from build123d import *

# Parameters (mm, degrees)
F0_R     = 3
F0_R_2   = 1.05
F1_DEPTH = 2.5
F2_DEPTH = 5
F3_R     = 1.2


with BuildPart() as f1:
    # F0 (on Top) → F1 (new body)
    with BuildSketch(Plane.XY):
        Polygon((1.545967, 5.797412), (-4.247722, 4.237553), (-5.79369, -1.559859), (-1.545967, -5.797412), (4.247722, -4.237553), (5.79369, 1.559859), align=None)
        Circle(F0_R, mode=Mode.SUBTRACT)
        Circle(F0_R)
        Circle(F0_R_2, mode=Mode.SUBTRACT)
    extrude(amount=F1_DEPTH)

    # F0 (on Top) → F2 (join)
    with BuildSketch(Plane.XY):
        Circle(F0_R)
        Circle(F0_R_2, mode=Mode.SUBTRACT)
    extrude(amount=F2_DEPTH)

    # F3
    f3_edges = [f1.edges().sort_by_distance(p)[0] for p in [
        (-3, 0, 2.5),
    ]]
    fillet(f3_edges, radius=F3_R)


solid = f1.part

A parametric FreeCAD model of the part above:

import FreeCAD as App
import Part
import Sketcher

V = App.Vector


def edges_at(feature, points):
    """Names of the edges that pass closest to the given points."""
    edges = feature.Shape.Edges
    near = lambda p: min(range(len(edges)), key=lambda i: edges[i].distToShape(Part.Vertex(*p))[0])
    return sorted({f"Edge{near(p) + 1}" for p in points})


def add_polygon(sketch, points):
    """Adds a closed chain of lines whose ends are joined by coincident constraints."""
    first, n = sketch.GeometryCount, len(points)
    for a, b in zip(points, points[1:] + points[:1]):
        sketch.addGeometry(Part.LineSegment(App.Vector(*a, 0), App.Vector(*b, 0)), False)
    for i in range(n):
        sketch.addConstraint(Sketcher.Constraint("Coincident", first + i, 2, first + (i + 1) % n, 1))

doc = App.newDocument("Part")
params = doc.addObject("Spreadsheet::Sheet", "Params")
for row, (alias, value) in enumerate([
    ("sketch1_diameter", "2.1 mm"),
    ("sketch1_length", "5.999999 mm"),
    ("pad1_length", "2.5 mm"),
    ("sketch2_diameter", "6 mm"),
    ("sketch2_diameter2", "2.1 mm"),
    ("pad2_length", "5 mm"),
    ("fillet_radius", "1.2 mm"),
], start=1):
    params.set(f"A{row}", alias)
    params.set(f"B{row}", "=" + value)
    params.setAlias(f"B{row}", alias)

body = doc.addObject("PartDesign::Body", "Body")

# Sketch on XY plane
sketch1 = body.newObject("Sketcher::SketchObject", "Sketch")
sketch1.AttachmentSupport = (doc.getObject("XY_Plane"), [""])
sketch1.MapMode = "FlatFace"
add_polygon(sketch1, [(1.545967, 5.797412), (-4.247722, 4.237553), (-5.79369, -1.559859), (-1.545967, -5.797412), (4.247722, -4.237553), (5.79369, 1.559859)])  # lines 0-5
sketch1.addGeometry(Part.Circle(V(0, 0, 0), V(0, 0, 1), 1.05), False)  # 6
sketch1.addConstraint([
    Sketcher.Constraint("Coincident", 6, 3, -1, 1),
    Sketcher.Constraint("Symmetric", 0, 2, 3, 2, -1, 1),
    Sketcher.Constraint("Symmetric", 1, 2, 4, 2, -1, 1),
    Sketcher.Constraint("Symmetric", 2, 2, 5, 2, -1, 1),
    Sketcher.Constraint("Equal", 0, 1),
    Sketcher.Constraint("Equal", 1, 2),
    Sketcher.Constraint("Diameter", 6, 2.1),
    Sketcher.Constraint("Distance", 0, 5.999999),
    Sketcher.Constraint("DistanceX", 1, 2, -1, 1, 5.79369),
    Sketcher.Constraint("DistanceY", 1, 2, -1, 1, 1.559859),
    Sketcher.Constraint("DistanceY", 2, 2, -1, 1, 5.797412),
])
sketch1.setExpression("Constraints[12]", "Params.sketch1_diameter")
sketch1.setExpression("Constraints[13]", "Params.sketch1_length")
pad1 = body.newObject("PartDesign::Pad", "Pad")
pad1.Profile = sketch1
pad1.setExpression("Length", "Params.pad1_length")

# Sketch on XY plane
sketch2 = body.newObject("Sketcher::SketchObject", "Sketch001")
sketch2.AttachmentSupport = (doc.getObject("XY_Plane"), [""])
sketch2.MapMode = "FlatFace"
sketch2.addGeometry([
    Part.Circle(V(0, 0, 0), V(0, 0, 1), 3),
    Part.Circle(V(0, 0, 0), V(0, 0, 1), 1.05),
], False)
sketch2.addConstraint([
    Sketcher.Constraint("Coincident", 0, 3, -1, 1),
    Sketcher.Constraint("Coincident", 1, 3, -1, 1),
    Sketcher.Constraint("Diameter", 0, 6.0),
    Sketcher.Constraint("Diameter", 1, 2.1),
])
sketch2.setExpression("Constraints[2]", "Params.sketch2_diameter")
sketch2.setExpression("Constraints[3]", "Params.sketch2_diameter2")
pad2 = body.newObject("PartDesign::Pad", "Pad001")
pad2.Profile = sketch2
pad2.setExpression("Length", "Params.pad2_length")
doc.recompute()

fillet = body.newObject("PartDesign::Fillet", "Fillet")
fillet.Base = (pad2, edges_at(pad2, [(-3, 0, 2.5)]))
fillet.setExpression("Radius", "Params.fillet_radius")

doc.recompute()
